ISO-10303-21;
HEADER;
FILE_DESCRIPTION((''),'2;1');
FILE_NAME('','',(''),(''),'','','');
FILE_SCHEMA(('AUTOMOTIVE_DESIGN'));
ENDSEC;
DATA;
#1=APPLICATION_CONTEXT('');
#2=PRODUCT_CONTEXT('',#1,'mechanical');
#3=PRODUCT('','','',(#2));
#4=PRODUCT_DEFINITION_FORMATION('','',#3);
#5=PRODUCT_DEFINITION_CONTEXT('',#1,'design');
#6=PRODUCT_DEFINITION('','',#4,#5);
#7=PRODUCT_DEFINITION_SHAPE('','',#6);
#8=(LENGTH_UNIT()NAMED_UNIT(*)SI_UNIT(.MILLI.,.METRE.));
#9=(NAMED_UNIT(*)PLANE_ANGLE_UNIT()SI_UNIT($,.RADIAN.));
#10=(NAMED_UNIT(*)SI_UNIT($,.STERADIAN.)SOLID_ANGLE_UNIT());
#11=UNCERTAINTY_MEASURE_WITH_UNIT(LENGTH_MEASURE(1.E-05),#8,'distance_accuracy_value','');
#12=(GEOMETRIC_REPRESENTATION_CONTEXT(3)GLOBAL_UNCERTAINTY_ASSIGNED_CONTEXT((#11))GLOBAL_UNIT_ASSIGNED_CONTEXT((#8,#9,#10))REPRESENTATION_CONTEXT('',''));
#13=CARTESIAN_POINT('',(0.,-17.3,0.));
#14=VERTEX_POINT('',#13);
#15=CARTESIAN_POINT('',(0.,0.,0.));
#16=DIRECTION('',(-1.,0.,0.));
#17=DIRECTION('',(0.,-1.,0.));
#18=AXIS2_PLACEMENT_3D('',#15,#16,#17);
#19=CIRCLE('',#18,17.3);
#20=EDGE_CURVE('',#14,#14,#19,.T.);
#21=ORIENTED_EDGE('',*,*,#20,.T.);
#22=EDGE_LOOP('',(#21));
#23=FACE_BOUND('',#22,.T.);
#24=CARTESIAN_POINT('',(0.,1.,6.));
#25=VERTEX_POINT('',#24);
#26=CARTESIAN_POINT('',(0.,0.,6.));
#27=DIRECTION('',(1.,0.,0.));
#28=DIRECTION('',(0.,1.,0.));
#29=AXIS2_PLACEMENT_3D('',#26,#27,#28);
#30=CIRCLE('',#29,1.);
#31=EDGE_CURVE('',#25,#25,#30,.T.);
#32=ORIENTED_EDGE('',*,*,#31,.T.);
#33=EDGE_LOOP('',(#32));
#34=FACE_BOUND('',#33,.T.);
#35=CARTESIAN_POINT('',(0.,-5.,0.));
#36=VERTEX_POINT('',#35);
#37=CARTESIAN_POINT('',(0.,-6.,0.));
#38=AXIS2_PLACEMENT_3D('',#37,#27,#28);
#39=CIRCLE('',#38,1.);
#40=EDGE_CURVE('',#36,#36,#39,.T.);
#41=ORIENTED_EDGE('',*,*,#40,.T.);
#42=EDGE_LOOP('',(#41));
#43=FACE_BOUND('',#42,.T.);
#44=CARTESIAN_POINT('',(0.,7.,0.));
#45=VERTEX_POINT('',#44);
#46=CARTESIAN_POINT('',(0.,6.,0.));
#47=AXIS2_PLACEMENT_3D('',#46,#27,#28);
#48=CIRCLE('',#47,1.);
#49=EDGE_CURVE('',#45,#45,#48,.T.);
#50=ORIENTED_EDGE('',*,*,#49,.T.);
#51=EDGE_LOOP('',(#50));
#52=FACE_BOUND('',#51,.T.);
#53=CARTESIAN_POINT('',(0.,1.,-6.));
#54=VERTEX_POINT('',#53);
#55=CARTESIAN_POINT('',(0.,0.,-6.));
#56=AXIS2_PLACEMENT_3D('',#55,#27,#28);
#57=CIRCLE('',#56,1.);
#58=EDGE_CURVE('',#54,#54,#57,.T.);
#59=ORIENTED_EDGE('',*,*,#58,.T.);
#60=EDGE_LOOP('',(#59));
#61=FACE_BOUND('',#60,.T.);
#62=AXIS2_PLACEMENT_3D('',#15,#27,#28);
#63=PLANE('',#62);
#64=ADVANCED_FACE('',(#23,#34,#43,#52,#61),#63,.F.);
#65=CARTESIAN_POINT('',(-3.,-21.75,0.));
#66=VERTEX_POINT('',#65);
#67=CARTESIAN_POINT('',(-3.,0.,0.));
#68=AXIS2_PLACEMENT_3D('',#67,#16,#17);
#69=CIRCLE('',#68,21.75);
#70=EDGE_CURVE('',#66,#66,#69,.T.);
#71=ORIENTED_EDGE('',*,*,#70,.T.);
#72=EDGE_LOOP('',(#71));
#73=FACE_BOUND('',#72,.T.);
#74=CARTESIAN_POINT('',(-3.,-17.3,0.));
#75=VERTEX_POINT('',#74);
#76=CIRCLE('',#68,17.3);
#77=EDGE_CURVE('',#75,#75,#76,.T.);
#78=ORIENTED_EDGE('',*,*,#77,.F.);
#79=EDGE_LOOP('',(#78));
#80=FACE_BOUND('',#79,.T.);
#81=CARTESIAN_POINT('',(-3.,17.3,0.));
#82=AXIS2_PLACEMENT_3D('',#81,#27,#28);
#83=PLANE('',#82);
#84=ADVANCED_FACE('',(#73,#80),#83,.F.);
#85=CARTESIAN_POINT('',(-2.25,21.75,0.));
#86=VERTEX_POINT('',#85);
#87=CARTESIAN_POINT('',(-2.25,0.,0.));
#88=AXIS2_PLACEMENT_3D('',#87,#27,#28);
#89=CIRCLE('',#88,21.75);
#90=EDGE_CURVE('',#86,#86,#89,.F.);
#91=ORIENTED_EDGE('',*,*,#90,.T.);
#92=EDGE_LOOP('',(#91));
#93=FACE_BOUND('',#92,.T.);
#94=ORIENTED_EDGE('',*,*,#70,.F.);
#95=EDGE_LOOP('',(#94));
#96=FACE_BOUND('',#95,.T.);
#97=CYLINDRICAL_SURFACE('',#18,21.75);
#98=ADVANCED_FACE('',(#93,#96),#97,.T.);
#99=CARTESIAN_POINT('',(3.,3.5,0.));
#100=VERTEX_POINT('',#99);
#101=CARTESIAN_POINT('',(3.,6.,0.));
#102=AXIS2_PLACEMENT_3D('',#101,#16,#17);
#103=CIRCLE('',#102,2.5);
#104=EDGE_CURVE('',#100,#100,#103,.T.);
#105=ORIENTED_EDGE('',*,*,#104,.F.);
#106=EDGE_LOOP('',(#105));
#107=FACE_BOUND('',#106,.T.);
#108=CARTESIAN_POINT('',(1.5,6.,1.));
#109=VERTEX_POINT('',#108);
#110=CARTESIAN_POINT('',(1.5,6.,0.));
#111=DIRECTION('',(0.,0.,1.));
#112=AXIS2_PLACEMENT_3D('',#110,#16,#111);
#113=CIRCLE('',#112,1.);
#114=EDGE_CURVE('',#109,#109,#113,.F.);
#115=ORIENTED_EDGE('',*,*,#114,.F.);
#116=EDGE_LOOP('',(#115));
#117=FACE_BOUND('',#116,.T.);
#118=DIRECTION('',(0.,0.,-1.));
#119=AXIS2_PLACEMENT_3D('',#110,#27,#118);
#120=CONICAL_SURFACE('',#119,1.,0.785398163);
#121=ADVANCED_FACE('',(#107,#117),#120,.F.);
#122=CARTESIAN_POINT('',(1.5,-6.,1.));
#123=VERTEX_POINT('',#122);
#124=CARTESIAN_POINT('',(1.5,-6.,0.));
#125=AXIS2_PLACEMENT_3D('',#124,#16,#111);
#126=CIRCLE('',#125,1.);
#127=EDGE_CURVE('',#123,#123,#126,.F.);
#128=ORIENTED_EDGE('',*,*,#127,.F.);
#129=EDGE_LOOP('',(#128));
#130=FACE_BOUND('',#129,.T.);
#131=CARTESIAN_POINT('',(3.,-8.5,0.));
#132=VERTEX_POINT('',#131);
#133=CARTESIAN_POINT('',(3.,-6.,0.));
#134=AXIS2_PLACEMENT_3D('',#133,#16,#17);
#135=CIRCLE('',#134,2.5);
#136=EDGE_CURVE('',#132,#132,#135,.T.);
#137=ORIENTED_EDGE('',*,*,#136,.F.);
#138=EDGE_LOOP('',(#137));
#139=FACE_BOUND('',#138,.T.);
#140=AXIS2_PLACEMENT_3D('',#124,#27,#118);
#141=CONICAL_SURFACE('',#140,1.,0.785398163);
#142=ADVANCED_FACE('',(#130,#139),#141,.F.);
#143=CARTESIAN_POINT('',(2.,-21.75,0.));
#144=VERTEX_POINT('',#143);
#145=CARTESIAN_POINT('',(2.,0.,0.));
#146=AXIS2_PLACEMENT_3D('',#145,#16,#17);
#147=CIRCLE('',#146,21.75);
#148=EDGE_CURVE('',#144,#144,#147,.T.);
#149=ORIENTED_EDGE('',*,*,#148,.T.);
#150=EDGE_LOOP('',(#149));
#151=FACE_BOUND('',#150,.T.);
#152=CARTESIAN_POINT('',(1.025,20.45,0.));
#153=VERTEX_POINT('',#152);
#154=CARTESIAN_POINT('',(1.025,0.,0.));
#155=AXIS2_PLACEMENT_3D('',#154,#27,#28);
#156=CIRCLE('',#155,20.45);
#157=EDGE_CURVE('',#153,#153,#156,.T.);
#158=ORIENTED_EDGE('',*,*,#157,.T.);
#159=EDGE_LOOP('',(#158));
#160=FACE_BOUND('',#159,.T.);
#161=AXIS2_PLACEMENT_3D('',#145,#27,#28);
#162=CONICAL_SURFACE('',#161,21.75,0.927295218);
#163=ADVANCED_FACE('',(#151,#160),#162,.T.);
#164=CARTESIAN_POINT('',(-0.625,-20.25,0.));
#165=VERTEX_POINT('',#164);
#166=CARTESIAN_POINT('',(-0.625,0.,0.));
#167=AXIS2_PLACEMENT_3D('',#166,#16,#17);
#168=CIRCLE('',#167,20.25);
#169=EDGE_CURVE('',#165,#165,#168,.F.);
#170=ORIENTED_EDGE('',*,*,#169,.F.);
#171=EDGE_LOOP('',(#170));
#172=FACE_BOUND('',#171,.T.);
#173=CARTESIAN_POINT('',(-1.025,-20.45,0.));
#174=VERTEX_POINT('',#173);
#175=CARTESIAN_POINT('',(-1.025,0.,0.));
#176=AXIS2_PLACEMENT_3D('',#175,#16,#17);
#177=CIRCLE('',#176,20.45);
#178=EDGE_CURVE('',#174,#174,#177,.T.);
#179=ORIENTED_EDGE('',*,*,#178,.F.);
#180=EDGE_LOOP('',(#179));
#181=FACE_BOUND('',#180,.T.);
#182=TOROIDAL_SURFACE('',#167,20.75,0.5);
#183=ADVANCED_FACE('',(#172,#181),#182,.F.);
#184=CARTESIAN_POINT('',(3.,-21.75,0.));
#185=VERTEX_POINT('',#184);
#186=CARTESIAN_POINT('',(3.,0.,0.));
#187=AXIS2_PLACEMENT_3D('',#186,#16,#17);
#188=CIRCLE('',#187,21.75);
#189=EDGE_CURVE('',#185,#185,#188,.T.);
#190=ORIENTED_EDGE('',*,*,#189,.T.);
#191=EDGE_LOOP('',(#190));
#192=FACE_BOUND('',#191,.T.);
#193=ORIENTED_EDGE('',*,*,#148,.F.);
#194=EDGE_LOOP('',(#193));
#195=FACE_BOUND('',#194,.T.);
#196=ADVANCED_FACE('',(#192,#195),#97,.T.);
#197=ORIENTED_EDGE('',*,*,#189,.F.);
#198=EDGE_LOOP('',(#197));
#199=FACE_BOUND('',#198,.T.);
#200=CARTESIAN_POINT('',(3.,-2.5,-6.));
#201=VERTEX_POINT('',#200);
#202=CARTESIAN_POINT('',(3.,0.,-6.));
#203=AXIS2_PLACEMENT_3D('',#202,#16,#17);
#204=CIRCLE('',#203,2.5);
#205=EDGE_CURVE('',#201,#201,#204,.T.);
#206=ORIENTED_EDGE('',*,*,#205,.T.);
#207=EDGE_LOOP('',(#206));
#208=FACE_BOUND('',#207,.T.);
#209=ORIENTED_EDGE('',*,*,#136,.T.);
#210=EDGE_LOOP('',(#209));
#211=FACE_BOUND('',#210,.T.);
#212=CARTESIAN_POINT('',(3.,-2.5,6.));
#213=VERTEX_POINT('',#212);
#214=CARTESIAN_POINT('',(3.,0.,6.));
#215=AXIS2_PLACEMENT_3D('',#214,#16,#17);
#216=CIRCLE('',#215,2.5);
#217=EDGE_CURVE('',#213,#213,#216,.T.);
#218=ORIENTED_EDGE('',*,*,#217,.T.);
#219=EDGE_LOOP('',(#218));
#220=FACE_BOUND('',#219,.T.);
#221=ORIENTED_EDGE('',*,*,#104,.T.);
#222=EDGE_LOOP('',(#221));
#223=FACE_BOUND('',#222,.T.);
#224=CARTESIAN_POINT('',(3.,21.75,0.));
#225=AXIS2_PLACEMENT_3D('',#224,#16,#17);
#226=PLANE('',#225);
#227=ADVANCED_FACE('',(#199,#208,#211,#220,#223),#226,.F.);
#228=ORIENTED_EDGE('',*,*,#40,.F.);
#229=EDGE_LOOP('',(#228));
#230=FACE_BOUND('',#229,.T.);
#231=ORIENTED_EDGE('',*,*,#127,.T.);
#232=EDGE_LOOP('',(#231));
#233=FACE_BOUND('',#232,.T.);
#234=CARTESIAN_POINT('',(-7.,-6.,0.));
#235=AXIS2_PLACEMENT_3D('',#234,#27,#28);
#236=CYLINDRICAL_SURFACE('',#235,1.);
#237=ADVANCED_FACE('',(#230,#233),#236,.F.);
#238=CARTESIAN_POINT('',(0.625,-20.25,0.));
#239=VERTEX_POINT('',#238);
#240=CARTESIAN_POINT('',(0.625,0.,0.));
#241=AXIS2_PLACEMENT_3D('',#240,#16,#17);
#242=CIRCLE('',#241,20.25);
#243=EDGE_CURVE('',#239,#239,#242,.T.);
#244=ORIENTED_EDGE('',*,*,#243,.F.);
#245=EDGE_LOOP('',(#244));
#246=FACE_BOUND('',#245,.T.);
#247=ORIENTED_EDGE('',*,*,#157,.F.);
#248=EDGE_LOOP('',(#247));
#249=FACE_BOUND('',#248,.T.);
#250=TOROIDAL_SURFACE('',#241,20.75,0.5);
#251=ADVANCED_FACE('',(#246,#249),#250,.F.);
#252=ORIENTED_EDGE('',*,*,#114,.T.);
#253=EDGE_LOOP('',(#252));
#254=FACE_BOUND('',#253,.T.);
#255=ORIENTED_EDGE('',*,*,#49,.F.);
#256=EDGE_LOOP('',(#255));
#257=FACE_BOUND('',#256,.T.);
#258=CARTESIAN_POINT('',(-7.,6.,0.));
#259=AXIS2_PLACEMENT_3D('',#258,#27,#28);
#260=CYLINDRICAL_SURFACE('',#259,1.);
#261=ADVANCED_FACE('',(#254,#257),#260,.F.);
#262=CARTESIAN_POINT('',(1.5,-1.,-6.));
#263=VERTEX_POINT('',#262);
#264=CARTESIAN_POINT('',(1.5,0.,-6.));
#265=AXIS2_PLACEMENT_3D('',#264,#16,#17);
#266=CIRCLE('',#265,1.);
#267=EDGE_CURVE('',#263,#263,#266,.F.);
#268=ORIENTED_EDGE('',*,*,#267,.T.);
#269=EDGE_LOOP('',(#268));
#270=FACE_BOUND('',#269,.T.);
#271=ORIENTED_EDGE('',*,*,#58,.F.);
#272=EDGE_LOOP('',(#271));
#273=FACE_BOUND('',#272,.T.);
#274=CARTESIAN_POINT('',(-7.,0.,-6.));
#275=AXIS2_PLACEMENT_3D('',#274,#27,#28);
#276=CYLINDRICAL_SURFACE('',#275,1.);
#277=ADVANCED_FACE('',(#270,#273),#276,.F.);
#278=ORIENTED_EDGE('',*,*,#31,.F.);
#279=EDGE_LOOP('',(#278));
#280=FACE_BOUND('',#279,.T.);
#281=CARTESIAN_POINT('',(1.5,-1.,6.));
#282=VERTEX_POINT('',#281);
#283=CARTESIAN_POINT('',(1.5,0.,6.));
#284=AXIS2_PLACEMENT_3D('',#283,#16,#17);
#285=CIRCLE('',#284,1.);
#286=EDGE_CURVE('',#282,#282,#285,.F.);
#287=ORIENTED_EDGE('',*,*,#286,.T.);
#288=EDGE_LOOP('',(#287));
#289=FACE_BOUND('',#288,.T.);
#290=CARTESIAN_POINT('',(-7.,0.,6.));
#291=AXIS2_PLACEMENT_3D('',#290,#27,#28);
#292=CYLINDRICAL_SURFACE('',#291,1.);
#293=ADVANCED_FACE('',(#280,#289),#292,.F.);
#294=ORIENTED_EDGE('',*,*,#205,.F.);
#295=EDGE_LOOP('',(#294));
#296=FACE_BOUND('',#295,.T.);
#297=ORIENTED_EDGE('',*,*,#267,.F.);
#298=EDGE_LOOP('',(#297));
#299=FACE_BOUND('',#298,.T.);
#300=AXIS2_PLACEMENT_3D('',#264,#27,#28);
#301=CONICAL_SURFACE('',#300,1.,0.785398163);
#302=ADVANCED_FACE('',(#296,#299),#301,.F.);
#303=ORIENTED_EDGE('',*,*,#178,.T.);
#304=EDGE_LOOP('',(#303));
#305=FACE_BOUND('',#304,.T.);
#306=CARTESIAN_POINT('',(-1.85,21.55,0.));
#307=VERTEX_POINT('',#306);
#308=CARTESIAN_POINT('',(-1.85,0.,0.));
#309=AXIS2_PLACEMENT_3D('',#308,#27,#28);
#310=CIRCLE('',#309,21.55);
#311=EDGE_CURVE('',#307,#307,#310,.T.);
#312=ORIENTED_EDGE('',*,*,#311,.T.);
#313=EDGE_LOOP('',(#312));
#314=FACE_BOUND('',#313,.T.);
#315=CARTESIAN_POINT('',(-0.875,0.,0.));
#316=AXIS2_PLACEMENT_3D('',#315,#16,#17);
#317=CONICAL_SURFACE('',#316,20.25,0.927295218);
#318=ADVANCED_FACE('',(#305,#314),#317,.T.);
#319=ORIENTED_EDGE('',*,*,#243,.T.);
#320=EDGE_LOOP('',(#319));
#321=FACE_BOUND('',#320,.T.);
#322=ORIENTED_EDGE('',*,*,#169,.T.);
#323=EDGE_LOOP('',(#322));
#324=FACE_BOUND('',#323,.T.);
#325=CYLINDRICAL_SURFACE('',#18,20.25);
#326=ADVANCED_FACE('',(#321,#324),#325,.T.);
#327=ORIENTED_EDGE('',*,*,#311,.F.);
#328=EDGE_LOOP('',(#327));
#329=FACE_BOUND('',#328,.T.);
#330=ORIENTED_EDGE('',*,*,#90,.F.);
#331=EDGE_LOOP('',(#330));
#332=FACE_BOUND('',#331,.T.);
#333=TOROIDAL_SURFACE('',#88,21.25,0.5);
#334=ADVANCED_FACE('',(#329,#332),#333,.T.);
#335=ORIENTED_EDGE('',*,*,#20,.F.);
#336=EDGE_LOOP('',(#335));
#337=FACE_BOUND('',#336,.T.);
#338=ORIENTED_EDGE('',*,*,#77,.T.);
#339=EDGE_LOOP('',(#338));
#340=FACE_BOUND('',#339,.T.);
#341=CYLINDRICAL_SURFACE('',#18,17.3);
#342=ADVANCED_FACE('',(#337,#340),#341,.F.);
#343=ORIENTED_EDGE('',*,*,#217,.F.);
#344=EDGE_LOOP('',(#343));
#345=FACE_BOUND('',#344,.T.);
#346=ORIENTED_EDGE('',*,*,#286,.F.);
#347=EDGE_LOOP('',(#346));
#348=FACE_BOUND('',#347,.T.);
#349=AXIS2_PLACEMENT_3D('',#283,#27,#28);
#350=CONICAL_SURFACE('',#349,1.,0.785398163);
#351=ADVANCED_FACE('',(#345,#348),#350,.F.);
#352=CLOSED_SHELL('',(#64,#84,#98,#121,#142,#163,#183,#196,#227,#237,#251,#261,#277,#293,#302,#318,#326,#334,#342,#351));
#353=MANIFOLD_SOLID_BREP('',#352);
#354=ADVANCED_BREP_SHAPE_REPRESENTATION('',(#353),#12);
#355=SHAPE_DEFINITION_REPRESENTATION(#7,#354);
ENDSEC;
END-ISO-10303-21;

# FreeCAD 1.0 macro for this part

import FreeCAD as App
import Part
import Sketcher


def edges_at(feature, points):
    """Names of the edges that pass closest to the given points."""
    edges = feature.Shape.Edges
    near = lambda p: min(range(len(edges)), key=lambda i: edges[i].distToShape(Part.Vertex(*p))[0])
    return sorted({f"Edge{near(p) + 1}" for p in points})

doc = App.newDocument("Part")
params = doc.addObject("Spreadsheet::Sheet", "Params")
for row, (alias, value) in enumerate([
    ("sketch1_width", "3 mm"),
    ("sketch1_width2", "1 mm"),
    ("sketch1_height", "17.3 mm"),
    ("sketch1_width3", "1.75 mm"),
    ("sketch1_height2", "21.75 mm"),
    ("revolution_angle", "360 deg"),
    ("sketch2_diameter", "2 mm"),
    ("pocket1_length", "10 mm"),
    ("chamfer_size", "1.5 mm"),
    ("fillet_radius", "0.5 mm"),
], start=1):
    params.set(f"A{row}", alias)
    params.set(f"B{row}", "=" + value)
    params.setAlias(f"B{row}", alias)

body = doc.addObject("PartDesign::Body", "Body")

# Sketch on XY plane
sketch1 = doc.addObject("Sketcher::SketchObject", "Sketch")
body.addObject(sketch1)
sketch1.AttachmentSupport = (doc.XY_Plane, [""])
sketch1.MapMode = "FlatFace"
sketch1.addGeometry(Part.LineSegment(App.Vector(0, 17.3, 0), App.Vector(0, 0, 0)), False)
sketch1.addGeometry(Part.LineSegment(App.Vector(0, 0, 0), App.Vector(3, 0, 0)), False)
sketch1.addGeometry(Part.LineSegment(App.Vector(3, 0, 0), App.Vector(3, 21.75, 0)), False)
sketch1.addGeometry(Part.LineSegment(App.Vector(3, 21.75, 0), App.Vector(2, 21.75, 0)), False)
sketch1.addGeometry(Part.LineSegment(App.Vector(2, 21.75, 0), App.Vector(0.875, 20.25, 0)), False)
sketch1.addGeometry(Part.LineSegment(App.Vector(0.875, 20.25, 0), App.Vector(-0.875, 20.25, 0)), False)
sketch1.addGeometry(Part.LineSegment(App.Vector(-0.875, 20.25, 0), App.Vector(-2, 21.75, 0)), False)
sketch1.addGeometry(Part.LineSegment(App.Vector(-2, 21.75, 0), App.Vector(-3, 21.75, 0)), False)
sketch1.addGeometry(Part.LineSegment(App.Vector(-3, 21.75, 0), App.Vector(-3, 17.3, 0)), False)
sketch1.addGeometry(Part.LineSegment(App.Vector(-3, 17.3, 0), App.Vector(0, 17.3, 0)), False)
sketch1.addConstraint(Sketcher.Constraint("Coincident", 0, 2, 1, 1))
sketch1.addConstraint(Sketcher.Constraint("Coincident", 1, 2, 2, 1))
sketch1.addConstraint(Sketcher.Constraint("Coincident", 2, 2, 3, 1))
sketch1.addConstraint(Sketcher.Constraint("Coincident", 3, 2, 4, 1))
sketch1.addConstraint(Sketcher.Constraint("Coincident", 4, 2, 5, 1))
sketch1.addConstraint(Sketcher.Constraint("Coincident", 5, 2, 6, 1))
sketch1.addConstraint(Sketcher.Constraint("Coincident", 6, 2, 7, 1))
sketch1.addConstraint(Sketcher.Constraint("Coincident", 7, 2, 8, 1))
sketch1.addConstraint(Sketcher.Constraint("Coincident", 8, 2, 9, 1))
sketch1.addConstraint(Sketcher.Constraint("Coincident", 9, 2, 0, 1))
sketch1.addConstraint(Sketcher.Constraint("Vertical", 0))
sketch1.addConstraint(Sketcher.Constraint("Horizontal", 1))
sketch1.addConstraint(Sketcher.Constraint("Vertical", 2))
sketch1.addConstraint(Sketcher.Constraint("Horizontal", 3))
sketch1.addConstraint(Sketcher.Constraint("Horizontal", 5))
sketch1.addConstraint(Sketcher.Constraint("Horizontal", 7))
sketch1.addConstraint(Sketcher.Constraint("Vertical", 8))
sketch1.addConstraint(Sketcher.Constraint("Horizontal", 9))
sketch1.addConstraint(Sketcher.Constraint("Coincident", 0, 2, -1, 1))
sketch1.addConstraint(Sketcher.Constraint("Symmetric", 3, 2, 6, 2, -2))
sketch1.addConstraint(Sketcher.Constraint("Equal", 3, 7))
sketch1.addConstraint(Sketcher.Constraint("Equal", 4, 6))
sketch1.addConstraint(Sketcher.Constraint("DistanceX", 1, 1, 1, 2, 3.0))
sketch1.addConstraint(Sketcher.Constraint("DistanceX", 3, 2, 3, 1, 1.0))
sketch1.addConstraint(Sketcher.Constraint("DistanceY", 0, 2, 0, 1, 17.3))
sketch1.addConstraint(Sketcher.Constraint("DistanceX", 5, 2, 5, 1, 1.75))
sketch1.addConstraint(Sketcher.Constraint("DistanceY", 2, 1, 2, 2, 21.75))
sketch1.addConstraint(Sketcher.Constraint("DistanceY", 4, 2, 3, 2, 1.5))
sketch1.setExpression("Constraints[22]", "Params.sketch1_width")
sketch1.setExpression("Constraints[23]", "Params.sketch1_width2")
sketch1.setExpression("Constraints[24]", "Params.sketch1_height")
sketch1.setExpression("Constraints[25]", "Params.sketch1_width3")
sketch1.setExpression("Constraints[26]", "Params.sketch1_height2")
revolution = doc.addObject("PartDesign::Revolution", "Revolution")
body.addObject(revolution)
revolution.Profile = sketch1
revolution.ReferenceAxis = (sketch1, ["H_Axis"])
revolution.setExpression("Angle", "Params.revolution_angle")

# Sketch on YZ plane
sketch2 = doc.addObject("Sketcher::SketchObject", "Sketch001")
body.addObject(sketch2)
sketch2.AttachmentSupport = (doc.YZ_Plane, [""])
sketch2.MapMode = "FlatFace"
sketch2.AttachmentOffset = App.Placement(App.Vector(0, 0, 3), App.Rotation())
sketch2.addGeometry(Part.Circle(App.Vector(6, 0, 0), App.Vector(0, 0, 1), 1), False)
sketch2.addGeometry(Part.Circle(App.Vector(0, -6, 0), App.Vector(0, 0, 1), 1), False)
sketch2.addGeometry(Part.Circle(App.Vector(-6, 0, 0), App.Vector(0, 0, 1), 1), False)
sketch2.addGeometry(Part.Circle(App.Vector(0, 6, 0), App.Vector(0, 0, 1), 1), False)
sketch2.addConstraint(Sketcher.Constraint("Equal", 0, 1))
sketch2.addConstraint(Sketcher.Constraint("Equal", 1, 2))
sketch2.addConstraint(Sketcher.Constraint("Equal", 2, 3))
sketch2.addConstraint(Sketcher.Constraint("Symmetric", 0, 3, 2, 3, -1, 1))
sketch2.addConstraint(Sketcher.Constraint("Symmetric", 1, 3, 3, 3, -1, 1))
sketch2.addConstraint(Sketcher.Constraint("PointOnObject", 0, 3, -1))
sketch2.addConstraint(Sketcher.Constraint("PointOnObject", 1, 3, -2))
sketch2.addConstraint(Sketcher.Constraint("Diameter", 0, 2.0))
sketch2.addConstraint(Sketcher.Constraint("DistanceX", -1, 1, 0, 3, 6.0))
sketch2.addConstraint(Sketcher.Constraint("DistanceY", 1, 3, -1, 1, 6.0))
sketch2.setExpression("Constraints[7]", "Params.sketch2_diameter")
pocket1 = doc.addObject("PartDesign::Pocket", "Pocket")
body.addObject(pocket1)
pocket1.Profile = sketch2
pocket1.setExpression("Length", "Params.pocket1_length")
doc.recompute()

chamfer = doc.addObject("PartDesign::Chamfer", "Chamfer")
body.addObject(chamfer)
chamfer.Base = (pocket1, edges_at(pocket1, [
    (3, 6, 1),
    (3, 0, -5),
    (3, -6, 1),
    (3, 0, 7),
]))
chamfer.setExpression("Size", "Params.chamfer_size")
doc.recompute()

fillet = doc.addObject("PartDesign::Fillet", "Fillet")
body.addObject(fillet)
fillet.Base = (chamfer, edges_at(chamfer, [(-2, -21.75, 0), (0.875, -20.25, 0), (-0.875, -20.25, 0)]))
fillet.setExpression("Radius", "Params.fillet_radius")

doc.recompute()
